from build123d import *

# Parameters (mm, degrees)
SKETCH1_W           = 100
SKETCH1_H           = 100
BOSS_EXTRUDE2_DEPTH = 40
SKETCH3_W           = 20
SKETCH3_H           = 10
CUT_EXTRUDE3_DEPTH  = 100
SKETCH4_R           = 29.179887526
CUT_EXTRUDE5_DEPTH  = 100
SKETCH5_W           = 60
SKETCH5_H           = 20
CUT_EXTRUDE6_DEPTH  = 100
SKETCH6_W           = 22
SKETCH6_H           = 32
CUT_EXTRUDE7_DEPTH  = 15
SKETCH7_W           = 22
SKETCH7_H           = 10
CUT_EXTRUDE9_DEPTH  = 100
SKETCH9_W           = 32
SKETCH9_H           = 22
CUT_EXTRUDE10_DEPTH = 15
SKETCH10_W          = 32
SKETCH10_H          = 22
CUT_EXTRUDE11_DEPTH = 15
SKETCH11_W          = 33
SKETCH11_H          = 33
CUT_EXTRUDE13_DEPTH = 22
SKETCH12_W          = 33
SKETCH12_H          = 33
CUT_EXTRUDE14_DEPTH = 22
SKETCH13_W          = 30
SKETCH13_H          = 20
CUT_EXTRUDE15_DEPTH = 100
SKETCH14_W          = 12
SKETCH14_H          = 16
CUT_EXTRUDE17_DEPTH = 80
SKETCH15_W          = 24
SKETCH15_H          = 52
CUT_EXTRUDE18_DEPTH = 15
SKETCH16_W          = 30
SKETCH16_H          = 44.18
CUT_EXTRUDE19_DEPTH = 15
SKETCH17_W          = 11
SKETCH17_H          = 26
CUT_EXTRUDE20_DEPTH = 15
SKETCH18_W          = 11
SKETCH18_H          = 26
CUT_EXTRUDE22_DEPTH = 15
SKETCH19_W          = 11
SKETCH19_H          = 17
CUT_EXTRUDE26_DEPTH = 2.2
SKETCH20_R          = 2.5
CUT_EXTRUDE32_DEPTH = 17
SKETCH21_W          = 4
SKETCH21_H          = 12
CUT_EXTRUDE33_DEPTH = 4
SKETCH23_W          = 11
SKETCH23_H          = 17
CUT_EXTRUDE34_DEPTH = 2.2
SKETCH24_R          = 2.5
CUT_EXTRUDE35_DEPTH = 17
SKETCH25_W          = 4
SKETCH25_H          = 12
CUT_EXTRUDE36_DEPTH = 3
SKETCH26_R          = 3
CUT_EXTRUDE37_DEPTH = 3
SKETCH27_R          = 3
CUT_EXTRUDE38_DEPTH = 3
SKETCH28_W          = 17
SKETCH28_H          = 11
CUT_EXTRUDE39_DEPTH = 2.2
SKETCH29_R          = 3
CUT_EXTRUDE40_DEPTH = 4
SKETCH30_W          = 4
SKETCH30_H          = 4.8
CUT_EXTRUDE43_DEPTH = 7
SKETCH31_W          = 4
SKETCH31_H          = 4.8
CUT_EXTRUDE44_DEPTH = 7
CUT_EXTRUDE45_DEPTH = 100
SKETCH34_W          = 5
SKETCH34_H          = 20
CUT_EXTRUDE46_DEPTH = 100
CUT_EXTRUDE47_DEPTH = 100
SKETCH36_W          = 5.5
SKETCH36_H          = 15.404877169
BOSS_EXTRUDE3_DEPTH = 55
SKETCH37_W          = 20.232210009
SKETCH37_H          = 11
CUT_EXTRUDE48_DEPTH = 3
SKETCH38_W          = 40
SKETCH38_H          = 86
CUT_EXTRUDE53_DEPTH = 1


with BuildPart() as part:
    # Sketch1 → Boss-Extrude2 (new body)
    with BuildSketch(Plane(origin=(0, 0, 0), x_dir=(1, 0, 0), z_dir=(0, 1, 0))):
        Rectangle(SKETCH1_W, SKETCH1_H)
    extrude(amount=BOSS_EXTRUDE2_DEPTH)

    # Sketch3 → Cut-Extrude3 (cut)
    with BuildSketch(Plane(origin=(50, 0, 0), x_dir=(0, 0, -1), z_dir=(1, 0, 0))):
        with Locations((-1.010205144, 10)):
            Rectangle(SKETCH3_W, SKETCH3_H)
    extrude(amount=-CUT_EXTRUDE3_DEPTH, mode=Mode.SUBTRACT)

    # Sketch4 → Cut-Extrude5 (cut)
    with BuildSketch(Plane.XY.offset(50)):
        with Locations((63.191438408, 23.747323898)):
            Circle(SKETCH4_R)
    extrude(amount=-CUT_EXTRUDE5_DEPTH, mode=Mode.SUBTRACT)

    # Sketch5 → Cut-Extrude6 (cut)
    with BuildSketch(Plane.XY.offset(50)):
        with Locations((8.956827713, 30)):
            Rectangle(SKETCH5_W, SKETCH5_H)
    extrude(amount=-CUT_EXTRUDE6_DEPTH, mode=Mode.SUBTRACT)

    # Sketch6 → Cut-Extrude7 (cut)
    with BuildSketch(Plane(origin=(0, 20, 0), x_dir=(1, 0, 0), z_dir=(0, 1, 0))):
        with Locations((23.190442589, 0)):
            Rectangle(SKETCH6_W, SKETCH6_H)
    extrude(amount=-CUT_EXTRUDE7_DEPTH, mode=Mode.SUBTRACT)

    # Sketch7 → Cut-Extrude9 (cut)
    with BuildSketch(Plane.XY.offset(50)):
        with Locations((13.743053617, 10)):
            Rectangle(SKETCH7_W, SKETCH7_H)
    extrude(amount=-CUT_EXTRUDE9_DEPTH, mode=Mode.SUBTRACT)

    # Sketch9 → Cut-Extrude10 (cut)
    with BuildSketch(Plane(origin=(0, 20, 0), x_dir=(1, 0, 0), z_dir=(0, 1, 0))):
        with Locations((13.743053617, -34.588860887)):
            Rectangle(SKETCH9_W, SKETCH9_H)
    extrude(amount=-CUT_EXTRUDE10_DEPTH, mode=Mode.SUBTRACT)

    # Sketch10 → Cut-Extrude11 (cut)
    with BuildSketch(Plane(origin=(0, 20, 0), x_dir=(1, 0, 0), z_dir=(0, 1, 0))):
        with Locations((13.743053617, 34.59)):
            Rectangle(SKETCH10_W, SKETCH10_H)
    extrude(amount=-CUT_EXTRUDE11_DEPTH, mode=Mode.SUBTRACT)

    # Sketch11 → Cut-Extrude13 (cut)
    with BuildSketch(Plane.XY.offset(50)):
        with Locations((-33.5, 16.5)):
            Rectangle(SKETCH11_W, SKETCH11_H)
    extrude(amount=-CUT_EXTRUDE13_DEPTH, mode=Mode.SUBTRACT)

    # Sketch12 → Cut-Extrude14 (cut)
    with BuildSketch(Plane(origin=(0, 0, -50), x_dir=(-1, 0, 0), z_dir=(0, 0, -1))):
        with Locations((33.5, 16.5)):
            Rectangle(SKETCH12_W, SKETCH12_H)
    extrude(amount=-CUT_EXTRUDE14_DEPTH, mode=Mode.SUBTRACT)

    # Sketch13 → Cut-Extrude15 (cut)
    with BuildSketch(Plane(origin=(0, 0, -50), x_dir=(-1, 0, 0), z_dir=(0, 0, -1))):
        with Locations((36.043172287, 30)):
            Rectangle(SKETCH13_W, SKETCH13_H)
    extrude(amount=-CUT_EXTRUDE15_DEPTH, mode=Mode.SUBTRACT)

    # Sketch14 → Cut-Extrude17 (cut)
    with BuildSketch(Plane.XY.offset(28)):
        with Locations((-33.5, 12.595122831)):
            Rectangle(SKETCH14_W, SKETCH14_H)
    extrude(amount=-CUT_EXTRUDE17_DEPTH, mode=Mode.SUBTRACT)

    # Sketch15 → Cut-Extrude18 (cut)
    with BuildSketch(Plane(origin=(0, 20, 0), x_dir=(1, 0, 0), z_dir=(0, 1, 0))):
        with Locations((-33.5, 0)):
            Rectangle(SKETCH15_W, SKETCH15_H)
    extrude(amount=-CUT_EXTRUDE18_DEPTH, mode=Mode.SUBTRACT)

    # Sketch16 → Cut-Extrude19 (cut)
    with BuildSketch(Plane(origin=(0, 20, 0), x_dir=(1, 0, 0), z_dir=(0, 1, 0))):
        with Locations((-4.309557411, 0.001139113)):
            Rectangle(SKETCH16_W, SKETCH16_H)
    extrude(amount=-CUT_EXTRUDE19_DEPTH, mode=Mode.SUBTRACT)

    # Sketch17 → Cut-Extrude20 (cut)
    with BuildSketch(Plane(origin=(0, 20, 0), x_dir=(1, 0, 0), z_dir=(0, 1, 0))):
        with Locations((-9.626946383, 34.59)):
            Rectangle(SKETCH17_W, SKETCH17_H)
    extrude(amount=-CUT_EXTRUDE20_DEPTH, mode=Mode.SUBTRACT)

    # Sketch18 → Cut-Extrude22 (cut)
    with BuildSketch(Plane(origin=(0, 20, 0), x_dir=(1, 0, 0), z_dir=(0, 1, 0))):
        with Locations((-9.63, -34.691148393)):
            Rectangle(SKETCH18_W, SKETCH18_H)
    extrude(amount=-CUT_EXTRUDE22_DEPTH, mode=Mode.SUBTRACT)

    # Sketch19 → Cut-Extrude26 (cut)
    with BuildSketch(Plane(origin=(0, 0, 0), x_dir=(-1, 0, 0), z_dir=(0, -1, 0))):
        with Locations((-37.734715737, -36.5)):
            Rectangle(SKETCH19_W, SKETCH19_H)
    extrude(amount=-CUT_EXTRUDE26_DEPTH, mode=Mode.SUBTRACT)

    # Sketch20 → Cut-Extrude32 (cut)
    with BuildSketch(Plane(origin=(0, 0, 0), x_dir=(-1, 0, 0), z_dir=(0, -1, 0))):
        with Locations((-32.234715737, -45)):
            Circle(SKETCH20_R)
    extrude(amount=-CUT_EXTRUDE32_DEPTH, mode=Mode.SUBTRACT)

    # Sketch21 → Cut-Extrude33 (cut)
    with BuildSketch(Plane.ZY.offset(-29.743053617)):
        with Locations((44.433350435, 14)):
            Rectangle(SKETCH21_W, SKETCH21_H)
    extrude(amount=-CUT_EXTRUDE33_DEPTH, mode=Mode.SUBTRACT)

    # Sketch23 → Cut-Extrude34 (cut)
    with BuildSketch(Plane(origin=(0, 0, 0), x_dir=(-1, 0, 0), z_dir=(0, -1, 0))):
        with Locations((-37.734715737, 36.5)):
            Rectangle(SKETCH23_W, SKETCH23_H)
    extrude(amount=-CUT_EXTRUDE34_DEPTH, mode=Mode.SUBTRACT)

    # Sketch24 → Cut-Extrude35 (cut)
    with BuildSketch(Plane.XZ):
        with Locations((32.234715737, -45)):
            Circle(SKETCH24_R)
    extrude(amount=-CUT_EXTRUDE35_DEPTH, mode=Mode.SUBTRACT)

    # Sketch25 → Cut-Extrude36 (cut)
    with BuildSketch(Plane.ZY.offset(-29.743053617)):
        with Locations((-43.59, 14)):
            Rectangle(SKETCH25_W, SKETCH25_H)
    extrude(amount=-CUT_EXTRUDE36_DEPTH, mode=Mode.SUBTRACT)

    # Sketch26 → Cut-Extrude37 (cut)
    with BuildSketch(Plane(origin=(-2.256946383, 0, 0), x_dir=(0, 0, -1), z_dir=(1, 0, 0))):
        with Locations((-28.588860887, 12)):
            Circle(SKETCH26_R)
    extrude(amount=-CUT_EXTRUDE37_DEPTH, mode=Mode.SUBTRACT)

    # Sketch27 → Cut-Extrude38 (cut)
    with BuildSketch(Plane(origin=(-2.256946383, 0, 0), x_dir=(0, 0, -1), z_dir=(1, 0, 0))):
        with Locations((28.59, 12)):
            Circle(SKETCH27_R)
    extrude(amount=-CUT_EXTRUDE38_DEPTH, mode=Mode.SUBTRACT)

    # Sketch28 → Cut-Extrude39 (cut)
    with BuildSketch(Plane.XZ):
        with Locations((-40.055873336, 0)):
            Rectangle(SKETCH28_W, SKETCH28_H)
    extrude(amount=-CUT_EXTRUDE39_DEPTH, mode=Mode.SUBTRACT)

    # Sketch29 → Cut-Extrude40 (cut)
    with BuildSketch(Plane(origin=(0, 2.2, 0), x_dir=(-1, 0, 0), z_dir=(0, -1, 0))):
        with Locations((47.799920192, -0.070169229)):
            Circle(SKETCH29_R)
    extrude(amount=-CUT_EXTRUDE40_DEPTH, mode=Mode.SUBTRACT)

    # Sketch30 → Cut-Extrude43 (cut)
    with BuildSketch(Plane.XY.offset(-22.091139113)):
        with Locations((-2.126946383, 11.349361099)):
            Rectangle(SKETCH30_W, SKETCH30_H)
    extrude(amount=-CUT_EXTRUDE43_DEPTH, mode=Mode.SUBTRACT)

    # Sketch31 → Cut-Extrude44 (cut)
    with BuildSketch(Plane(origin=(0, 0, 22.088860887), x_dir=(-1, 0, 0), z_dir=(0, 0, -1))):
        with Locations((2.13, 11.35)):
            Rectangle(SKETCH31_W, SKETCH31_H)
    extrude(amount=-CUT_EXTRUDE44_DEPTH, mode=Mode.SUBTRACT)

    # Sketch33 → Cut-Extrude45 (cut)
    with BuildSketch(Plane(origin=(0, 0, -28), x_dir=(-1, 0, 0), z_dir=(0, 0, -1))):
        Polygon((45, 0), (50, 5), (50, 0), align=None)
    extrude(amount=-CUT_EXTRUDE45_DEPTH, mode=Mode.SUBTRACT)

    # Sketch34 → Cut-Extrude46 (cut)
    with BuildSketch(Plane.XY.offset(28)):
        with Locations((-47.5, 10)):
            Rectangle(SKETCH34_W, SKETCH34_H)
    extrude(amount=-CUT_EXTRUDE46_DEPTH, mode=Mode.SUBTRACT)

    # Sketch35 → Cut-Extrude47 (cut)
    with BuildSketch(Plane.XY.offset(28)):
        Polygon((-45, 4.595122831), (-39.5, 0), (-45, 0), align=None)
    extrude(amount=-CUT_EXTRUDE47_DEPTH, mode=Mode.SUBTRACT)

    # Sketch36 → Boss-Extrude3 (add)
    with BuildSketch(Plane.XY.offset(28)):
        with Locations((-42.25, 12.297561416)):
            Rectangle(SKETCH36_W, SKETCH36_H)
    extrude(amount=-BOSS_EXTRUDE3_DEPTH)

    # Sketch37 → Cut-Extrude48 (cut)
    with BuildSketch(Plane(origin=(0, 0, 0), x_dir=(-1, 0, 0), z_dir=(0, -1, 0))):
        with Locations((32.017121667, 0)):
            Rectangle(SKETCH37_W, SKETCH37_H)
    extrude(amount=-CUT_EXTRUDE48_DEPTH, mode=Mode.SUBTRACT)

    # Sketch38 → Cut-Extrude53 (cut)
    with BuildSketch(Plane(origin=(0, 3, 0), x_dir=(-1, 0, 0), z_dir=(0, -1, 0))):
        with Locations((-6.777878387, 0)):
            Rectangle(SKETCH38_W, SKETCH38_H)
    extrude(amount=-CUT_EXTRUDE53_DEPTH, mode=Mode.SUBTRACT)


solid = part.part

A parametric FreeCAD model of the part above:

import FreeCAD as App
import Part
import Sketcher

V = App.Vector
Q = App.Units.Quantity


def add_polygon(sketch, points):
    """Adds a closed chain of lines whose ends are joined by coincident constraints."""
    first, n = sketch.GeometryCount, len(points)
    for a, b in zip(points, points[1:] + points[:1]):
        sketch.addGeometry(Part.LineSegment(App.Vector(*a, 0), App.Vector(*b, 0)), False)
    for i in range(n):
        sketch.addConstraint(Sketcher.Constraint("Coincident", first + i, 2, first + (i + 1) % n, 1))

doc = App.newDocument("Part")
body = doc.addObject("PartDesign::Body", "Body")

sketch1 = doc.addObject("Sketcher::SketchObject", "Sketch")
body.addObject(sketch1)
sketch1.AttachmentSupport = (doc.XZ_Plane, [""])
sketch1.MapMode = "FlatFace"
add_polygon(sketch1, [(-50, -50), (-50, 50), (50, 50), (50, -50)])
sketch1.addConstraint(Sketcher.Constraint("Vertical", 0))
sketch1.addConstraint(Sketcher.Constraint("Horizontal", 1))
sketch1.addConstraint(Sketcher.Constraint("Vertical", 2))
sketch1.addConstraint(Sketcher.Constraint("Horizontal", 3))
sketch1.addConstraint(Sketcher.Constraint("Symmetric", 0, 2, 2, 2, -1, 1))
sketch1.addConstraint(Sketcher.Constraint("Equal", 3, 0))
sketch1.addConstraint(Sketcher.Constraint("DistanceX", 1, 1, 1, 2, Q("100 mm")))
pad1 = doc.addObject("PartDesign::Pad", "Pad")
body.addObject(pad1)
pad1.Profile = sketch1
pad1.Length = 40
pad1.Reversed = True

sketch2 = doc.addObject("Sketcher::SketchObject", "Sketch001")
body.addObject(sketch2)
sketch2.AttachmentSupport = (doc.YZ_Plane, [""])
sketch2.MapMode = "FlatFace"
sketch2.AttachmentOffset = App.Placement(V(0, 0, 50), App.Rotation())
add_polygon(sketch2, [(15, 11), (5, 11), (5, -9), (15, -9)])
sketch2.addConstraint(Sketcher.Constraint("Horizontal", 0))
sketch2.addConstraint(Sketcher.Constraint("Vertical", 1))
sketch2.addConstraint(Sketcher.Constraint("Horizontal", 2))
sketch2.addConstraint(Sketcher.Constraint("Vertical", 3))
sketch2.addConstraint(Sketcher.Constraint("DistanceX", 0, 2, 0, 1, Q("10 mm")))
sketch2.addConstraint(Sketcher.Constraint("DistanceY", 1, 2, 1, 1, Q("20 mm")))
sketch2.addConstraint(Sketcher.Constraint("DistanceX", -1, 1, 0, 2, Q("5 mm")))
sketch2.addConstraint(Sketcher.Constraint("DistanceY", -1, 1, 0, 2, Q("11.010205 mm")))
pocket1 = doc.addObject("PartDesign::Pocket", "Pocket")
body.addObject(pocket1)
pocket1.Profile = sketch2
pocket1.Length = 100

sketch3 = doc.addObject("Sketcher::SketchObject", "Sketch002")
body.addObject(sketch3)
sketch3.AttachmentSupport = (doc.XY_Plane, [""])
sketch3.MapMode = "FlatFace"
sketch3.AttachmentOffset = App.Placement(V(0, 0, 50), App.Rotation())
sketch3.addGeometry(Part.Circle(V(63, 24, 0), V(0, 0, 1), 29), False)
sketch3.addConstraint(Sketcher.Constraint("Diameter", 0, Q("58.359775 mm")))
sketch3.addConstraint(Sketcher.Constraint("DistanceX", -1, 1, 0, 3, Q("63.191438 mm")))
sketch3.addConstraint(Sketcher.Constraint("DistanceY", -1, 1, 0, 3, Q("23.747324 mm")))
pocket2 = doc.addObject("PartDesign::Pocket", "Pocket001")
body.addObject(pocket2)
pocket2.Profile = sketch3
pocket2.Length = 100

sketch4 = doc.addObject("Sketcher::SketchObject", "Sketch003")
body.addObject(sketch4)
sketch4.AttachmentSupport = (doc.XY_Plane, [""])
sketch4.MapMode = "FlatFace"
sketch4.AttachmentOffset = App.Placement(V(0, 0, 50), App.Rotation())
add_polygon(sketch4, [(-21, 40), (-21, 20), (39, 20), (39, 40)])
sketch4.addConstraint(Sketcher.Constraint("Vertical", 0))
sketch4.addConstraint(Sketcher.Constraint("Horizontal", 1))
sketch4.addConstraint(Sketcher.Constraint("Vertical", 2))
sketch4.addConstraint(Sketcher.Constraint("Horizontal", 3))
sketch4.addConstraint(Sketcher.Constraint("DistanceX", 1, 1, 1, 2, Q("60 mm")))
sketch4.addConstraint(Sketcher.Constraint("DistanceY", 0, 2, 0, 1, Q("20 mm")))
sketch4.addConstraint(Sketcher.Constraint("DistanceY", -1, 1, 0, 2, Q("20 mm")))
sketch4.addConstraint(Sketcher.Constraint("DistanceX", 0, 2, -1, 1, Q("21.043172 mm")))
pocket3 = doc.addObject("PartDesign::Pocket", "Pocket002")
body.addObject(pocket3)
pocket3.Profile = sketch4
pocket3.Length = 100

sketch5 = doc.addObject("Sketcher::SketchObject", "Sketch004")
body.addObject(sketch5)
sketch5.AttachmentSupport = (doc.XZ_Plane, [""])
sketch5.MapMode = "FlatFace"
sketch5.AttachmentOffset = App.Placement(V(0, 0, -20), App.Rotation())
add_polygon(sketch5, [(12, -16), (12, 16), (34, 16), (34, -16)])
sketch5.addConstraint(Sketcher.Constraint("Vertical", 0))
sketch5.addConstraint(Sketcher.Constraint("Horizontal", 1))
sketch5.addConstraint(Sketcher.Constraint("Vertical", 2))
sketch5.addConstraint(Sketcher.Constraint("Horizontal", 3))
sketch5.addConstraint(Sketcher.Constraint("DistanceX", 1, 1, 1, 2, Q("22 mm")))
sketch5.addConstraint(Sketcher.Constraint("DistanceY", 0, 1, 0, 2, Q("32 mm")))
sketch5.addConstraint(Sketcher.Constraint("DistanceY", -1, 1, 0, 2, Q("16 mm")))
sketch5.addConstraint(Sketcher.Constraint("DistanceX", -1, 1, 0, 2, Q("12.190443 mm")))
pocket4 = doc.addObject("PartDesign::Pocket", "Pocket003")
body.addObject(pocket4)
pocket4.Profile = sketch5
pocket4.Length = 15
pocket4.Reversed = True

sketch6 = doc.addObject("Sketcher::SketchObject", "Sketch005")
body.addObject(sketch6)
sketch6.AttachmentSupport = (doc.XY_Plane, [""])
sketch6.MapMode = "FlatFace"
sketch6.AttachmentOffset = App.Placement(V(0, 0, 50), App.Rotation())
add_polygon(sketch6, [(3, 15), (3, 5), (25, 5), (25, 15)])
sketch6.addConstraint(Sketcher.Constraint("Vertical", 0))
sketch6.addConstraint(Sketcher.Constraint("Horizontal", 1))
sketch6.addConstraint(Sketcher.Constraint("Vertical", 2))
sketch6.addConstraint(Sketcher.Constraint("Horizontal", 3))
sketch6.addConstraint(Sketcher.Constraint("DistanceX", 1, 1, 1, 2, Q("22 mm")))
sketch6.addConstraint(Sketcher.Constraint("DistanceY", 0, 2, 0, 1, Q("10 mm")))
sketch6.addConstraint(Sketcher.Constraint("DistanceY", -1, 1, 0, 2, Q("5 mm")))
sketch6.addConstraint(Sketcher.Constraint("DistanceX", -1, 1, 0, 2, Q("2.743054 mm")))
pocket5 = doc.addObject("PartDesign::Pocket", "Pocket004")
body.addObject(pocket5)
pocket5.Profile = sketch6
pocket5.Length = 100

sketch7 = doc.addObject("Sketcher::SketchObject", "Sketch006")
body.addObject(sketch7)
sketch7.AttachmentSupport = (doc.XZ_Plane, [""])
sketch7.MapMode = "FlatFace"
sketch7.AttachmentOffset = App.Placement(V(0, 0, -20), App.Rotation())
add_polygon(sketch7, [(-2, 24), (-2, 46), (30, 46), (30, 24)])
sketch7.addConstraint(Sketcher.Constraint("Vertical", 0))
sketch7.addConstraint(Sketcher.Constraint("Horizontal", 1))
sketch7.addConstraint(Sketcher.Constraint("Vertical", 2))
sketch7.addConstraint(Sketcher.Constraint("Horizontal", 3))
sketch7.addConstraint(Sketcher.Constraint("DistanceX", 1, 1, 1, 2, Q("32 mm")))
sketch7.addConstraint(Sketcher.Constraint("DistanceY", 0, 1, 0, 2, Q("22 mm")))
sketch7.addConstraint(Sketcher.Constraint("DistanceY", -1, 1, 0, 2, Q("45.588861 mm")))
sketch7.addConstraint(Sketcher.Constraint("DistanceX", 0, 2, -1, 1, Q("2.256946 mm")))
pocket6 = doc.addObject("PartDesign::Pocket", "Pocket005")
body.addObject(pocket6)
pocket6.Profile = sketch7
pocket6.Length = 15
pocket6.Reversed = True

sketch8 = doc.addObject("Sketcher::SketchObject", "Sketch007")
body.addObject(sketch8)
sketch8.AttachmentSupport = (doc.XZ_Plane, [""])
sketch8.MapMode = "FlatFace"
sketch8.AttachmentOffset = App.Placement(V(0, 0, -20), App.Rotation())
add_polygon(sketch8, [(-2, -46), (-2, -24), (30, -24), (30, -46)])
sketch8.addConstraint(Sketcher.Constraint("Vertical", 0))
sketch8.addConstraint(Sketcher.Constraint("Horizontal", 1))
sketch8.addConstraint(Sketcher.Constraint("Vertical", 2))
sketch8.addConstraint(Sketcher.Constraint("Horizontal", 3))
sketch8.addConstraint(Sketcher.Constraint("DistanceX", 1, 1, 1, 2, Q("32 mm")))
sketch8.addConstraint(Sketcher.Constraint("DistanceY", 0, 1, 0, 2, Q("22 mm")))
sketch8.addConstraint(Sketcher.Constraint("DistanceY", 0, 2, -1, 1, Q("23.59 mm")))
sketch8.addConstraint(Sketcher.Constraint("DistanceX", 0, 2, -1, 1, Q("2.256946 mm")))
pocket7 = doc.addObject("PartDesign::Pocket", "Pocket006")
body.addObject(pocket7)
pocket7.Profile = sketch8
pocket7.Length = 15
pocket7.Reversed = True

sketch9 = doc.addObject("Sketcher::SketchObject", "Sketch008")
body.addObject(sketch9)
sketch9.AttachmentSupport = (doc.XY_Plane, [""])
sketch9.MapMode = "FlatFace"
sketch9.AttachmentOffset = App.Placement(V(0, 0, 50), App.Rotation())
add_polygon(sketch9, [(-50, 33), (-50, 0), (-17, 0), (-17, 33)])
sketch9.addConstraint(Sketcher.Constraint("Vertical", 0))
sketch9.addConstraint(Sketcher.Constraint("Horizontal", 1))
sketch9.addConstraint(Sketcher.Constraint("Vertical", 2))
sketch9.addConstraint(Sketcher.Constraint("Horizontal", 3))
sketch9.addConstraint(Sketcher.Constraint("PointOnObject", 0, 2, -1))
sketch9.addConstraint(Sketcher.Constraint("Equal", 3, 0))
sketch9.addConstraint(Sketcher.Constraint("DistanceX", 1, 1, 1, 2, Q("33 mm")))
sketch9.addConstraint(Sketcher.Constraint("DistanceX", 0, 2, -1, 1, Q("50 mm")))
pocket8 = doc.addObject("PartDesign::Pocket", "Pocket007")
body.addObject(pocket8)
pocket8.Profile = sketch9
pocket8.Length = 22

sketch10 = doc.addObject("Sketcher::SketchObject", "Sketch009")
body.addObject(sketch10)
sketch10.AttachmentSupport = (doc.XY_Plane, [""])
sketch10.MapMode = "FlatFace"
sketch10.AttachmentOffset = App.Placement(V(0, 0, -50), App.Rotation())
add_polygon(sketch10, [(-17, 33), (-17, 0), (-50, 0), (-50, 33)])
sketch10.addConstraint(Sketcher.Constraint("Vertical", 0))
sketch10.addConstraint(Sketcher.Constraint("Horizontal", 1))
sketch10.addConstraint(Sketcher.Constraint("Vertical", 2))
sketch10.addConstraint(Sketcher.Constraint("Horizontal", 3))
sketch10.addConstraint(Sketcher.Constraint("PointOnObject", 0, 2, -1))
sketch10.addConstraint(Sketcher.Constraint("Equal", 3, 0))
sketch10.addConstraint(Sketcher.Constraint("DistanceX", 1, 2, 1, 1, Q("33 mm")))
sketch10.addConstraint(Sketcher.Constraint("DistanceX", 0, 2, -1, 1, Q("17 mm")))
pocket9 = doc.addObject("PartDesign::Pocket", "Pocket008")
body.addObject(pocket9)
pocket9.Profile = sketch10
pocket9.Length = 22
pocket9.Reversed = True

sketch11 = doc.addObject("Sketcher::SketchObject", "Sketch010")
body.addObject(sketch11)
sketch11.AttachmentSupport = (doc.XY_Plane, [""])
sketch11.MapMode = "FlatFace"
sketch11.AttachmentOffset = App.Placement(V(0, 0, -50), App.Rotation())
add_polygon(sketch11, [(-21, 40), (-21, 20), (-51, 20), (-51, 40)])
sketch11.addConstraint(Sketcher.Constraint("Vertical", 0))
sketch11.addConstraint(Sketcher.Constraint("Horizontal", 1))
sketch11.addConstraint(Sketcher.Constraint("Vertical", 2))
sketch11.addConstraint(Sketcher.Constraint("Horizontal", 3))
sketch11.addConstraint(Sketcher.Constraint("DistanceX", 1, 2, 1, 1, Q("30 mm")))
sketch11.addConstraint(Sketcher.Constraint("DistanceY", 0, 2, 0, 1, Q("20 mm")))
sketch11.addConstraint(Sketcher.Constraint("DistanceY", -1, 1, 0, 2, Q("20 mm")))
sketch11.addConstraint(Sketcher.Constraint("DistanceX", 0, 2, -1, 1, Q("21.043172 mm")))
pocket10 = doc.addObject("PartDesign::Pocket", "Pocket009")
body.addObject(pocket10)
pocket10.Profile = sketch11
pocket10.Length = 100
pocket10.Reversed = True

sketch12 = doc.addObject("Sketcher::SketchObject", "Sketch011")
body.addObject(sketch12)
sketch12.AttachmentSupport = (doc.XY_Plane, [""])
sketch12.MapMode = "FlatFace"
sketch12.AttachmentOffset = App.Placement(V(0, 0, 28), App.Rotation())
add_polygon(sketch12, [(-40, 21), (-40, 5), (-28, 5), (-28, 21)])
sketch12.addConstraint(Sketcher.Constraint("Vertical", 0))
sketch12.addConstraint(Sketcher.Constraint("Horizontal", 1))
sketch12.addConstraint(Sketcher.Constraint("Vertical", 2))
sketch12.addConstraint(Sketcher.Constraint("Horizontal", 3))
sketch12.addConstraint(Sketcher.Constraint("DistanceX", 1, 1, 1, 2, Q("12 mm")))
sketch12.addConstraint(Sketcher.Constraint("DistanceY", 0, 2, 0, 1, Q("16 mm")))
sketch12.addConstraint(Sketcher.Constraint("DistanceX", 0, 2, -1, 1, Q("39.5 mm")))
sketch12.addConstraint(Sketcher.Constraint("DistanceY", -1, 1, 0, 2, Q("4.595123 mm")))
pocket11 = doc.addObject("PartDesign::Pocket", "Pocket010")
body.addObject(pocket11)
pocket11.Profile = sketch12
pocket11.Length = 80

sketch13 = doc.addObject("Sketcher::SketchObject", "Sketch012")
body.addObject(sketch13)
sketch13.AttachmentSupport = (doc.XZ_Plane, [""])
sketch13.MapMode = "FlatFace"
sketch13.AttachmentOffset = App.Placement(V(0, 0, -20), App.Rotation())
add_polygon(sketch13, [(-46, -26), (-46, 26), (-22, 26), (-22, -26)])
sketch13.addConstraint(Sketcher.Constraint("Vertical", 0))
sketch13.addConstraint(Sketcher.Constraint("Horizontal", 1))
sketch13.addConstraint(Sketcher.Constraint("Vertical", 2))
sketch13.addConstraint(Sketcher.Constraint("Horizontal", 3))
sketch13.addConstraint(Sketcher.Constraint("DistanceX", 1, 1, 1, 2, Q("24 mm")))
sketch13.addConstraint(Sketcher.Constraint("DistanceY", 0, 1, 0, 2, Q("52 mm")))
sketch13.addConstraint(Sketcher.Constraint("DistanceY", -1, 1, 0, 2, Q("26 mm")))
sketch13.addConstraint(Sketcher.Constraint("DistanceX", 0, 2, -1, 1, Q("45.5 mm")))
pocket12 = doc.addObject("PartDesign::Pocket", "Pocket011")
body.addObject(pocket12)
pocket12.Profile = sketch13
pocket12.Length = 15
pocket12.Reversed = True

sketch14 = doc.addObject("Sketcher::SketchObject", "Sketch013")
body.addObject(sketch14)
sketch14.AttachmentSupport = (doc.XZ_Plane, [""])
sketch14.MapMode = "FlatFace"
sketch14.AttachmentOffset = App.Placement(V(0, 0, -20), App.Rotation())
add_polygon(sketch14, [(-19, -22), (-19, 22), (11, 22), (11, -22)])
sketch14.addConstraint(Sketcher.Constraint("Vertical", 0))
sketch14.addConstraint(Sketcher.Constraint("Horizontal", 1))
sketch14.addConstraint(Sketcher.Constraint("Vertical", 2))
sketch14.addConstraint(Sketcher.Constraint("Horizontal", 3))
sketch14.addConstraint(Sketcher.Constraint("DistanceX", 1, 1, 1, 2, Q("30 mm")))
sketch14.addConstraint(Sketcher.Constraint("DistanceY", 0, 1, 0, 2, Q("44.18 mm")))
sketch14.addConstraint(Sketcher.Constraint("DistanceY", -1, 1, 0, 2, Q("22.088861 mm")))
sketch14.addConstraint(Sketcher.Constraint("DistanceX", 0, 2, -1, 1, Q("19.309557 mm")))
pocket13 = doc.addObject("PartDesign::Pocket", "Pocket012")
body.addObject(pocket13)
pocket13.Profile = sketch14
pocket13.Length = 15
pocket13.Reversed = True

sketch15 = doc.addObject("Sketcher::SketchObject", "Sketch014")
body.addObject(sketch15)
sketch15.AttachmentSupport = (doc.XZ_Plane, [""])
sketch15.MapMode = "FlatFace"
sketch15.AttachmentOffset = App.Placement(V(0, 0, -20), App.Rotation())
add_polygon(sketch15, [(-15, -48), (-15, -22), (-4, -22), (-4, -48)])
sketch15.addConstraint(Sketcher.Constraint("Vertical", 0))
sketch15.addConstraint(Sketcher.Constraint("Horizontal", 1))
sketch15.addConstraint(Sketcher.Constraint("Vertical", 2))
sketch15.addConstraint(Sketcher.Constraint("Horizontal", 3))
sketch15.addConstraint(Sketcher.Constraint("DistanceX", 1, 1, 1, 2, Q("11 mm")))
sketch15.addConstraint(Sketcher.Constraint("DistanceY", 0, 1, 0, 2, Q("26 mm")))
sketch15.addConstraint(Sketcher.Constraint("DistanceY", 0, 2, -1, 1, Q("21.59 mm")))
sketch15.addConstraint(Sketcher.Constraint("DistanceX", 0, 2, -1, 1, Q("15.126946 mm")))
pocket14 = doc.addObject("PartDesign::Pocket", "Pocket013")
body.addObject(pocket14)
pocket14.Profile = sketch15
pocket14.Length = 15
pocket14.Reversed = True

sketch16 = doc.addObject("Sketcher::SketchObject", "Sketch015")
body.addObject(sketch16)
sketch16.AttachmentSupport = (doc.XZ_Plane, [""])
sketch16.MapMode = "FlatFace"
sketch16.AttachmentOffset = App.Placement(V(0, 0, -20), App.Rotation())
add_polygon(sketch16, [(-15, 22), (-15, 48), (-4, 48), (-4, 22)])
sketch16.addConstraint(Sketcher.Constraint("Vertical", 0))
sketch16.addConstraint(Sketcher.Constraint("Horizontal", 1))
sketch16.addConstraint(Sketcher.Constraint("Vertical", 2))
sketch16.addConstraint(Sketcher.Constraint("Horizontal", 3))
sketch16.addConstraint(Sketcher.Constraint("DistanceX", 1, 1, 1, 2, Q("11 mm")))
sketch16.addConstraint(Sketcher.Constraint("DistanceY", 0, 1, 0, 2, Q("26 mm")))
sketch16.addConstraint(Sketcher.Constraint("DistanceX", 0, 2, -1, 1, Q("15.13 mm")))
sketch16.addConstraint(Sketcher.Constraint("DistanceY", -1, 1, 0, 2, Q("47.691148 mm")))
pocket15 = doc.addObject("PartDesign::Pocket", "Pocket014")
body.addObject(pocket15)
pocket15.Profile = sketch16
pocket15.Length = 15
pocket15.Reversed = True

sketch17 = doc.addObject("Sketcher::SketchObject", "Sketch016")
body.addObject(sketch17)
sketch17.AttachmentSupport = (doc.XZ_Plane, [""])
sketch17.MapMode = "FlatFace"
add_polygon(sketch17, [(43, 28), (43, 45), (32, 45), (32, 28)])
sketch17.addConstraint(Sketcher.Constraint("Vertical", 0))
sketch17.addConstraint(Sketcher.Constraint("Horizontal", 1))
sketch17.addConstraint(Sketcher.Constraint("Vertical", 2))
sketch17.addConstraint(Sketcher.Constraint("Horizontal", 3))
sketch17.addConstraint(Sketcher.Constraint("DistanceX", 1, 2, 1, 1, Q("11 mm")))
sketch17.addConstraint(Sketcher.Constraint("DistanceY", 0, 1, 0, 2, Q("17 mm")))
sketch17.addConstraint(Sketcher.Constraint("DistanceY", -1, 1, 0, 2, Q("45 mm")))
sketch17.addConstraint(Sketcher.Constraint("DistanceX", -1, 1, 0, 2, Q("43.234716 mm")))
pocket16 = doc.addObject("PartDesign::Pocket", "Pocket015")
body.addObject(pocket16)
pocket16.Profile = sketch17
pocket16.Length = 2.2

sketch18 = doc.addObject("Sketcher::SketchObject", "Sketch017")
body.addObject(sketch18)
sketch18.AttachmentSupport = (doc.XZ_Plane, [""])
sketch18.MapMode = "FlatFace"
sketch18.addGeometry(Part.Circle(V(32.2, 45, 0), V(0, 0, 1), 2.5), False)
sketch18.addConstraint(Sketcher.Constraint("Diameter", 0, Q("5 mm")))
sketch18.addConstraint(Sketcher.Constraint("DistanceY", -1, 1, 0, 3, Q("45 mm")))
sketch18.addConstraint(Sketcher.Constraint("DistanceX", -1, 1, 0, 3, Q("32.234716 mm")))
pocket17 = doc.addObject("PartDesign::Pocket", "Pocket016")
body.addObject(pocket17)
pocket17.Profile = sketch18
pocket17.Length = 17

sketch19 = doc.addObject("Sketcher::SketchObject", "Sketch018")
body.addObject(sketch19)
sketch19.AttachmentSupport = (doc.YZ_Plane, [""])
sketch19.MapMode = "FlatFace"
sketch19.AttachmentOffset = App.Placement(V(0, 0, 29.743054), App.Rotation())
add_polygon(sketch19, [(20, 42.4), (8, 42.4), (8, 46.4), (20, 46.4)])
sketch19.addConstraint(Sketcher.Constraint("Horizontal", 0))
sketch19.addConstraint(Sketcher.Constraint("Vertical", 1))
sketch19.addConstraint(Sketcher.Constraint("Horizontal", 2))
sketch19.addConstraint(Sketcher.Constraint("Vertical", 3))
sketch19.addConstraint(Sketcher.Constraint("DistanceX", 0, 2, 0, 1, Q("12 mm")))
sketch19.addConstraint(Sketcher.Constraint("DistanceY", 1, 1, 1, 2, Q("4 mm")))
sketch19.addConstraint(Sketcher.Constraint("DistanceX", -1, 1, 0, 2, Q("8 mm")))
sketch19.addConstraint(Sketcher.Constraint("DistanceY", -1, 1, 0, 2, Q("42.43335 mm")))
pocket18 = doc.addObject("PartDesign::Pocket", "Pocket017")
body.addObject(pocket18)
pocket18.Profile = sketch19
pocket18.Length = 4
pocket18.Reversed = True

sketch20 = doc.addObject("Sketcher::SketchObject", "Sketch019")
body.addObject(sketch20)
sketch20.AttachmentSupport = (doc.XZ_Plane, [""])
sketch20.MapMode = "FlatFace"
add_polygon(sketch20, [(43, -45), (43, -28), (32, -28), (32, -45)])
sketch20.addConstraint(Sketcher.Constraint("Vertical", 0))
sketch20.addConstraint(Sketcher.Constraint("Horizontal", 1))
sketch20.addConstraint(Sketcher.Constraint("Vertical", 2))
sketch20.addConstraint(Sketcher.Constraint("Horizontal", 3))
sketch20.addConstraint(Sketcher.Constraint("DistanceX", 1, 2, 1, 1, Q("11 mm")))
sketch20.addConstraint(Sketcher.Constraint("DistanceY", 0, 1, 0, 2, Q("17 mm")))
sketch20.addConstraint(Sketcher.Constraint("DistanceY", 0, 2, -1, 1, Q("28 mm")))
sketch20.addConstraint(Sketcher.Constraint("DistanceX", -1, 1, 0, 2, Q("43.234716 mm")))
pocket19 = doc.addObject("PartDesign::Pocket", "Pocket018")
body.addObject(pocket19)
pocket19.Profile = sketch20
pocket19.Length = 2.2

sketch21 = doc.addObject("Sketcher::SketchObject", "Sketch020")
body.addObject(sketch21)
sketch21.AttachmentSupport = (doc.XZ_Plane, [""])
sketch21.MapMode = "FlatFace"
sketch21.addGeometry(Part.Circle(V(32.2, -45, 0), V(0, 0, 1), 2.5), False)
sketch21.addConstraint(Sketcher.Constraint("Diameter", 0, Q("5 mm")))
sketch21.addConstraint(Sketcher.Constraint("DistanceY", 0, 3, -1, 1, Q("45 mm")))
sketch21.addConstraint(Sketcher.Constraint("DistanceX", -1, 1, 0, 3, Q("32.234716 mm")))
pocket20 = doc.addObject("PartDesign::Pocket", "Pocket019")
body.addObject(pocket20)
pocket20.Profile = sketch21
pocket20.Length = 17

sketch22 = doc.addObject("Sketcher::SketchObject", "Sketch021")
body.addObject(sketch22)
sketch22.AttachmentSupport = (doc.YZ_Plane, [""])
sketch22.MapMode = "FlatFace"
sketch22.AttachmentOffset = App.Placement(V(0, 0, 29.743054), App.Rotation())
add_polygon(sketch22, [(20, -45.6), (8, -45.6), (8, -41.6), (20, -41.6)])
sketch22.addConstraint(Sketcher.Constraint("Horizontal", 0))
sketch22.addConstraint(Sketcher.Constraint("Vertical", 1))
sketch22.addConstraint(Sketcher.Constraint("Horizontal", 2))
sketch22.addConstraint(Sketcher.Constraint("Vertical", 3))
sketch22.addConstraint(Sketcher.Constraint("DistanceX", 0, 2, 0, 1, Q("12 mm")))
sketch22.addConstraint(Sketcher.Constraint("DistanceY", 1, 1, 1, 2, Q("4 mm")))
sketch22.addConstraint(Sketcher.Constraint("DistanceX", -1, 1, 0, 2, Q("8 mm")))
sketch22.addConstraint(Sketcher.Constraint("DistanceY", 0, 2, -1, 1, Q("45.59 mm")))
pocket21 = doc.addObject("PartDesign::Pocket", "Pocket020")
body.addObject(pocket21)
pocket21.Profile = sketch22
pocket21.Length = 3
pocket21.Reversed = True

sketch23 = doc.addObject("Sketcher::SketchObject", "Sketch022")
body.addObject(sketch23)
sketch23.AttachmentSupport = (doc.YZ_Plane, [""])
sketch23.MapMode = "FlatFace"
sketch23.AttachmentOffset = App.Placement(V(0, 0, -2.256946), App.Rotation())
sketch23.addGeometry(Part.Circle(V(12, 28.6, 0), V(0, 0, 1), 3), False)
sketch23.addConstraint(Sketcher.Constraint("Diameter", 0, Q("6 mm")))
sketch23.addConstraint(Sketcher.Constraint("DistanceX", -1, 1, 0, 3, Q("12 mm")))
sketch23.addConstraint(Sketcher.Constraint("DistanceY", -1, 1, 0, 3, Q("28.588861 mm")))
pocket22 = doc.addObject("PartDesign::Pocket", "Pocket021")
body.addObject(pocket22)
pocket22.Profile = sketch23
pocket22.Length = 3

sketch24 = doc.addObject("Sketcher::SketchObject", "Sketch023")
body.addObject(sketch24)
sketch24.AttachmentSupport = (doc.YZ_Plane, [""])
sketch24.MapMode = "FlatFace"
sketch24.AttachmentOffset = App.Placement(V(0, 0, -2.256946), App.Rotation())
sketch24.addGeometry(Part.Circle(V(12, -28.6, 0), V(0, 0, 1), 3), False)
sketch24.addConstraint(Sketcher.Constraint("Diameter", 0, Q("6 mm")))
sketch24.addConstraint(Sketcher.Constraint("DistanceX", -1, 1, 0, 3, Q("12 mm")))
sketch24.addConstraint(Sketcher.Constraint("DistanceY", 0, 3, -1, 1, Q("28.59 mm")))
pocket23 = doc.addObject("PartDesign::Pocket", "Pocket022")
body.addObject(pocket23)
pocket23.Profile = sketch24
pocket23.Length = 3

sketch25 = doc.addObject("Sketcher::SketchObject", "Sketch024")
body.addObject(sketch25)
sketch25.AttachmentSupport = (doc.XZ_Plane, [""])
sketch25.MapMode = "FlatFace"
add_polygon(sketch25, [(-49, 6), (-49, -6), (-32, -6), (-32, 6)])
sketch25.addConstraint(Sketcher.Constraint("Vertical", 0))
sketch25.addConstraint(Sketcher.Constraint("Horizontal", 1))
sketch25.addConstraint(Sketcher.Constraint("Vertical", 2))
sketch25.addConstraint(Sketcher.Constraint("Horizontal", 3))
sketch25.addConstraint(Sketcher.Constraint("DistanceX", 1, 1, 1, 2, Q("17 mm")))
sketch25.addConstraint(Sketcher.Constraint("DistanceY", 0, 2, 0, 1, Q("11 mm")))
sketch25.addConstraint(Sketcher.Constraint("DistanceY", 0, 2, -1, 1, Q("5.5 mm")))
sketch25.addConstraint(Sketcher.Constraint("DistanceX", 0, 2, -1, 1, Q("48.555873 mm")))
pocket24 = doc.addObject("PartDesign::Pocket", "Pocket023")
body.addObject(pocket24)
pocket24.Profile = sketch25
pocket24.Length = 2.2

sketch26 = doc.addObject("Sketcher::SketchObject", "Sketch025")
body.addObject(sketch26)
sketch26.AttachmentSupport = (doc.XZ_Plane, [""])
sketch26.MapMode = "FlatFace"
sketch26.AttachmentOffset = App.Placement(V(0, 0, -2.2), App.Rotation())
sketch26.addGeometry(Part.Circle(V(-47.8, 0.1, 0), V(0, 0, 1), 3), False)
sketch26.addConstraint(Sketcher.Constraint("Diameter", 0, Q("6 mm")))
sketch26.addConstraint(Sketcher.Constraint("DistanceX", 0, 3, -1, 1, Q("47.79992 mm")))
sketch26.addConstraint(Sketcher.Constraint("DistanceY", -1, 1, 0, 3, Q("0.070169 mm")))
pocket25 = doc.addObject("PartDesign::Pocket", "Pocket024")
body.addObject(pocket25)
pocket25.Profile = sketch26
pocket25.Length = 4

sketch27 = doc.addObject("Sketcher::SketchObject", "Sketch026")
body.addObject(sketch27)
sketch27.AttachmentSupport = (doc.XY_Plane, [""])
sketch27.MapMode = "FlatFace"
sketch27.AttachmentOffset = App.Placement(V(0, 0, -22.091139), App.Rotation())
add_polygon(sketch27, [(-4.1, 13.7), (-4.1, 8.9), (-0.1, 8.9), (-0.1, 13.7)])
sketch27.addConstraint(Sketcher.Constraint("Vertical", 0))
sketch27.addConstraint(Sketcher.Constraint("Horizontal", 1))
sketch27.addConstraint(Sketcher.Constraint("Vertical", 2))
sketch27.addConstraint(Sketcher.Constraint("Horizontal", 3))
sketch27.addConstraint(Sketcher.Constraint("DistanceX", 1, 1, 1, 2, Q("4 mm")))
sketch27.addConstraint(Sketcher.Constraint("DistanceY", 0, 2, 0, 1, Q("4.8 mm")))
sketch27.addConstraint(Sketcher.Constraint("DistanceY", -1, 1, 0, 2, Q("8.949361 mm")))
sketch27.addConstraint(Sketcher.Constraint("DistanceX", 0, 2, -1, 1, Q("4.126946 mm")))
pocket26 = doc.addObject("PartDesign::Pocket", "Pocket025")
body.addObject(pocket26)
pocket26.Profile = sketch27
pocket26.Length = 7

sketch28 = doc.addObject("Sketcher::SketchObject", "Sketch027")
body.addObject(sketch28)
sketch28.AttachmentSupport = (doc.XY_Plane, [""])
sketch28.MapMode = "FlatFace"
sketch28.AttachmentOffset = App.Placement(V(0, 0, 22.088861), App.Rotation())
add_polygon(sketch28, [(-0.1, 13.8), (-0.1, 8.9), (-4.1, 8.9), (-4.1, 13.8)])
sketch28.addConstraint(Sketcher.Constraint("Vertical", 0))
sketch28.addConstraint(Sketcher.Constraint("Horizontal", 1))
sketch28.addConstraint(Sketcher.Constraint("Vertical", 2))
sketch28.addConstraint(Sketcher.Constraint("Horizontal", 3))
sketch28.addConstraint(Sketcher.Constraint("DistanceX", 1, 2, 1, 1, Q("4 mm")))
sketch28.addConstraint(Sketcher.Constraint("DistanceY", 0, 2, 0, 1, Q("4.8 mm")))
sketch28.addConstraint(Sketcher.Constraint("DistanceX", 0, 2, -1, 1, Q("0.13 mm")))
sketch28.addConstraint(Sketcher.Constraint("DistanceY", -1, 1, 0, 2, Q("8.95 mm")))
pocket27 = doc.addObject("PartDesign::Pocket", "Pocket026")
body.addObject(pocket27)
pocket27.Profile = sketch28
pocket27.Length = 7
pocket27.Reversed = True

sketch29 = doc.addObject("Sketcher::SketchObject", "Sketch028")
body.addObject(sketch29)
sketch29.AttachmentSupport = (doc.XY_Plane, [""])
sketch29.MapMode = "FlatFace"
sketch29.AttachmentOffset = App.Placement(V(0, 0, -28), App.Rotation())
add_polygon(sketch29, [(-50, 5), (-45, 0), (-50, 0)])
sketch29.addConstraint(Sketcher.Constraint("Horizontal", 1))
sketch29.addConstraint(Sketcher.Constraint("Vertical", 2))
sketch29.addConstraint(Sketcher.Constraint("PointOnObject", 0, 2, -1))
sketch29.addConstraint(Sketcher.Constraint("Equal", 1, 2))
sketch29.addConstraint(Sketcher.Constraint("DistanceX", 1, 2, 1, 1, Q("5 mm")))
sketch29.addConstraint(Sketcher.Constraint("DistanceX", 0, 2, -1, 1, Q("45 mm")))
pocket28 = doc.addObject("PartDesign::Pocket", "Pocket027")
body.addObject(pocket28)
pocket28.Profile = sketch29
pocket28.Length = 100
pocket28.Reversed = True

sketch30 = doc.addObject("Sketcher::SketchObject", "Sketch029")
body.addObject(sketch30)
sketch30.AttachmentSupport = (doc.XY_Plane, [""])
sketch30.MapMode = "FlatFace"
sketch30.AttachmentOffset = App.Placement(V(0, 0, 28), App.Rotation())
add_polygon(sketch30, [(-50, 20), (-50, 0), (-45, 0), (-45, 20)])
sketch30.addConstraint(Sketcher.Constraint("Vertical", 0))
sketch30.addConstraint(Sketcher.Constraint("Horizontal", 1))
sketch30.addConstraint(Sketcher.Constraint("Vertical", 2))
sketch30.addConstraint(Sketcher.Constraint("Horizontal", 3))
sketch30.addConstraint(Sketcher.Constraint("PointOnObject", 0, 2, -1))
sketch30.addConstraint(Sketcher.Constraint("DistanceX", 1, 1, 1, 2, Q("5 mm")))
sketch30.addConstraint(Sketcher.Constraint("DistanceY", 0, 2, 0, 1, Q("20 mm")))
sketch30.addConstraint(Sketcher.Constraint("DistanceX", 0, 2, -1, 1, Q("50 mm")))
pocket29 = doc.addObject("PartDesign::Pocket", "Pocket028")
body.addObject(pocket29)
pocket29.Profile = sketch30
pocket29.Length = 100

sketch31 = doc.addObject("Sketcher::SketchObject", "Sketch030")
body.addObject(sketch31)
sketch31.AttachmentSupport = (doc.XY_Plane, [""])
sketch31.MapMode = "FlatFace"
sketch31.AttachmentOffset = App.Placement(V(0, 0, 28), App.Rotation())
add_polygon(sketch31, [(-39.5, 0), (-45, 4.6), (-45, 0)])
sketch31.addConstraint(Sketcher.Constraint("Vertical", 1))
sketch31.addConstraint(Sketcher.Constraint("Horizontal", 2))
sketch31.addConstraint(Sketcher.Constraint("PointOnObject", 1, 2, -1))
sketch31.addConstraint(Sketcher.Constraint("DistanceX", 2, 1, 2, 2, Q("5.5 mm")))
sketch31.addConstraint(Sketcher.Constraint("DistanceX", 0, 2, -1, 1, Q("45 mm")))
sketch31.addConstraint(Sketcher.Constraint("Distance", 0, Q("7.166949 mm")))
pocket30 = doc.addObject("PartDesign::Pocket", "Pocket029")
body.addObject(pocket30)
pocket30.Profile = sketch31
pocket30.Length = 100

sketch32 = doc.addObject("Sketcher::SketchObject", "Sketch031")
body.addObject(sketch32)
sketch32.AttachmentSupport = (doc.XY_Plane, [""])
sketch32.MapMode = "FlatFace"
sketch32.AttachmentOffset = App.Placement(V(0, 0, 28), App.Rotation())
add_polygon(sketch32, [(-45, 20), (-45, 5), (-40, 5), (-40, 20)])
sketch32.addConstraint(Sketcher.Constraint("Vertical", 0))
sketch32.addConstraint(Sketcher.Constraint("Horizontal", 1))
sketch32.addConstraint(Sketcher.Constraint("Vertical", 2))
sketch32.addConstraint(Sketcher.Constraint("Horizontal", 3))
sketch32.addConstraint(Sketcher.Constraint("DistanceX", 1, 1, 1, 2, Q("5.5 mm")))
sketch32.addConstraint(Sketcher.Constraint("DistanceX", 0, 2, -1, 1, Q("45 mm")))
sketch32.addConstraint(Sketcher.Constraint("DistanceY", -1, 1, 2, 2, Q("20 mm")))
sketch32.addConstraint(Sketcher.Constraint("DistanceY", 0, 2, 0, 1, Q("15.404877 mm")))
pad2 = doc.addObject("PartDesign::Pad", "Pad001")
body.addObject(pad2)
pad2.Profile = sketch32
pad2.Length = 55
pad2.Reversed = True

sketch33 = doc.addObject("Sketcher::SketchObject", "Sketch032")
body.addObject(sketch33)
sketch33.AttachmentSupport = (doc.XZ_Plane, [""])
sketch33.MapMode = "FlatFace"
add_polygon(sketch33, [(-22, -6), (-22, 6), (-42, 6), (-42, -6)])
sketch33.addConstraint(Sketcher.Constraint("Vertical", 0))
sketch33.addConstraint(Sketcher.Constraint("Horizontal", 1))
sketch33.addConstraint(Sketcher.Constraint("Vertical", 2))
sketch33.addConstraint(Sketcher.Constraint("Horizontal", 3))
sketch33.addConstraint(Sketcher.Constraint("DistanceY", 0, 1, 0, 2, Q("11 mm")))
sketch33.addConstraint(Sketcher.Constraint("DistanceY", -1, 1, 0, 2, Q("5.5 mm")))
sketch33.addConstraint(Sketcher.Constraint("DistanceX", 1, 2, 1, 1, Q("20.23221 mm")))
sketch33.addConstraint(Sketcher.Constraint("DistanceX", 0, 2, -1, 1, Q("21.901017 mm")))
pocket31 = doc.addObject("PartDesign::Pocket", "Pocket030")
body.addObject(pocket31)
pocket31.Profile = sketch33
pocket31.Length = 3

sketch34 = doc.addObject("Sketcher::SketchObject", "Sketch033")
body.addObject(sketch34)
sketch34.AttachmentSupport = (doc.XZ_Plane, [""])
sketch34.MapMode = "FlatFace"
sketch34.AttachmentOffset = App.Placement(V(0, 0, -3), App.Rotation())
add_polygon(sketch34, [(27, -43), (27, 43), (-13, 43), (-13, -43)])
sketch34.addConstraint(Sketcher.Constraint("Vertical", 0))
sketch34.addConstraint(Sketcher.Constraint("Horizontal", 1))
sketch34.addConstraint(Sketcher.Constraint("Vertical", 2))
sketch34.addConstraint(Sketcher.Constraint("Horizontal", 3))
sketch34.addConstraint(Sketcher.Constraint("DistanceX", 1, 2, 1, 1, Q("40 mm")))
sketch34.addConstraint(Sketcher.Constraint("DistanceY", 0, 1, 0, 2, Q("86 mm")))
sketch34.addConstraint(Sketcher.Constraint("DistanceY", -1, 1, 0, 2, Q("43 mm")))
sketch34.addConstraint(Sketcher.Constraint("DistanceX", -1, 1, 0, 2, Q("26.777878 mm")))
pocket32 = doc.addObject("PartDesign::Pocket", "Pocket031")
body.addObject(pocket32)
pocket32.Profile = sketch34
pocket32.Length = 1

doc.recompute()
